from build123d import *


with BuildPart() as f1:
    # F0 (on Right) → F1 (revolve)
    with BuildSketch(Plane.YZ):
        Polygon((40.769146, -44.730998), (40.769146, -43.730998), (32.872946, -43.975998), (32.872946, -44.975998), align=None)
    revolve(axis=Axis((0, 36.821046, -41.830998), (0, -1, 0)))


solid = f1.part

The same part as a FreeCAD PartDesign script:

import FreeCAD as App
import Part
import Sketcher
from FreeCAD import Vector


def add_polygon(sketch, points):
    """Adds a closed chain of lines whose ends are joined by coincident constraints."""
    first, n = sketch.GeometryCount, len(points)
    for a, b in zip(points, points[1:] + points[:1]):
        sketch.addGeometry(Part.LineSegment(App.Vector(*a, 0), App.Vector(*b, 0)), False)
    for i in range(n):
        sketch.addConstraint(Sketcher.Constraint("Coincident", first + i, 2, first + (i + 1) % n, 1))

doc = App.newDocument("Part")
body = doc.addObject("PartDesign::Body", "Body")

sketch1 = doc.addObject("Sketcher::SketchObject", "Sketch")
body.addObject(sketch1)
sketch1.AttachmentSupport = (doc.YZ_Plane, [""])
sketch1.MapMode = "FlatFace"
add_polygon(sketch1, [(40.769146, -44.730998), (40.769146, -43.730998), (32.872946, -43.975998), (32.872946, -44.975998)])
sketch1.addGeometry(Part.LineSegment(Vector(40.769146, -41.830998, 0), Vector(32.872946, -41.830998, 0)), True)
sketch1.addConstraint([
    Sketcher.Constraint("Vertical", 0),
    Sketcher.Constraint("Vertical", 2),
    Sketcher.Constraint("Horizontal", 4),
    Sketcher.Constraint("Parallel", 1, 3),
    Sketcher.Constraint("Vertical", 3, 2, 4, 1),
    Sketcher.Constraint("Vertical", 2, 2, 4, 2),
    Sketcher.Constraint("DistanceY", 0, 1, 0, 2, 1.0),
    Sketcher.Constraint("Distance", 1, 7.9),
    Sketcher.Constraint("DistanceY", 0, 2, 4, 1, 1.9),
    Sketcher.Constraint("DistanceX", 4, 2, 4, 1, 7.8962),
    Sketcher.Constraint("DistanceX", -1, 1, 0, 2, 40.769146),
    Sketcher.Constraint("DistanceY", 0, 2, -1, 1, 43.730998),
])
revolution = doc.addObject("PartDesign::Revolution", "Revolution")
body.addObject(revolution)
revolution.Profile = sketch1
revolution.ReferenceAxis = (sketch1, ["Axis0"])
revolution.Angle = 360

doc.recompute()
